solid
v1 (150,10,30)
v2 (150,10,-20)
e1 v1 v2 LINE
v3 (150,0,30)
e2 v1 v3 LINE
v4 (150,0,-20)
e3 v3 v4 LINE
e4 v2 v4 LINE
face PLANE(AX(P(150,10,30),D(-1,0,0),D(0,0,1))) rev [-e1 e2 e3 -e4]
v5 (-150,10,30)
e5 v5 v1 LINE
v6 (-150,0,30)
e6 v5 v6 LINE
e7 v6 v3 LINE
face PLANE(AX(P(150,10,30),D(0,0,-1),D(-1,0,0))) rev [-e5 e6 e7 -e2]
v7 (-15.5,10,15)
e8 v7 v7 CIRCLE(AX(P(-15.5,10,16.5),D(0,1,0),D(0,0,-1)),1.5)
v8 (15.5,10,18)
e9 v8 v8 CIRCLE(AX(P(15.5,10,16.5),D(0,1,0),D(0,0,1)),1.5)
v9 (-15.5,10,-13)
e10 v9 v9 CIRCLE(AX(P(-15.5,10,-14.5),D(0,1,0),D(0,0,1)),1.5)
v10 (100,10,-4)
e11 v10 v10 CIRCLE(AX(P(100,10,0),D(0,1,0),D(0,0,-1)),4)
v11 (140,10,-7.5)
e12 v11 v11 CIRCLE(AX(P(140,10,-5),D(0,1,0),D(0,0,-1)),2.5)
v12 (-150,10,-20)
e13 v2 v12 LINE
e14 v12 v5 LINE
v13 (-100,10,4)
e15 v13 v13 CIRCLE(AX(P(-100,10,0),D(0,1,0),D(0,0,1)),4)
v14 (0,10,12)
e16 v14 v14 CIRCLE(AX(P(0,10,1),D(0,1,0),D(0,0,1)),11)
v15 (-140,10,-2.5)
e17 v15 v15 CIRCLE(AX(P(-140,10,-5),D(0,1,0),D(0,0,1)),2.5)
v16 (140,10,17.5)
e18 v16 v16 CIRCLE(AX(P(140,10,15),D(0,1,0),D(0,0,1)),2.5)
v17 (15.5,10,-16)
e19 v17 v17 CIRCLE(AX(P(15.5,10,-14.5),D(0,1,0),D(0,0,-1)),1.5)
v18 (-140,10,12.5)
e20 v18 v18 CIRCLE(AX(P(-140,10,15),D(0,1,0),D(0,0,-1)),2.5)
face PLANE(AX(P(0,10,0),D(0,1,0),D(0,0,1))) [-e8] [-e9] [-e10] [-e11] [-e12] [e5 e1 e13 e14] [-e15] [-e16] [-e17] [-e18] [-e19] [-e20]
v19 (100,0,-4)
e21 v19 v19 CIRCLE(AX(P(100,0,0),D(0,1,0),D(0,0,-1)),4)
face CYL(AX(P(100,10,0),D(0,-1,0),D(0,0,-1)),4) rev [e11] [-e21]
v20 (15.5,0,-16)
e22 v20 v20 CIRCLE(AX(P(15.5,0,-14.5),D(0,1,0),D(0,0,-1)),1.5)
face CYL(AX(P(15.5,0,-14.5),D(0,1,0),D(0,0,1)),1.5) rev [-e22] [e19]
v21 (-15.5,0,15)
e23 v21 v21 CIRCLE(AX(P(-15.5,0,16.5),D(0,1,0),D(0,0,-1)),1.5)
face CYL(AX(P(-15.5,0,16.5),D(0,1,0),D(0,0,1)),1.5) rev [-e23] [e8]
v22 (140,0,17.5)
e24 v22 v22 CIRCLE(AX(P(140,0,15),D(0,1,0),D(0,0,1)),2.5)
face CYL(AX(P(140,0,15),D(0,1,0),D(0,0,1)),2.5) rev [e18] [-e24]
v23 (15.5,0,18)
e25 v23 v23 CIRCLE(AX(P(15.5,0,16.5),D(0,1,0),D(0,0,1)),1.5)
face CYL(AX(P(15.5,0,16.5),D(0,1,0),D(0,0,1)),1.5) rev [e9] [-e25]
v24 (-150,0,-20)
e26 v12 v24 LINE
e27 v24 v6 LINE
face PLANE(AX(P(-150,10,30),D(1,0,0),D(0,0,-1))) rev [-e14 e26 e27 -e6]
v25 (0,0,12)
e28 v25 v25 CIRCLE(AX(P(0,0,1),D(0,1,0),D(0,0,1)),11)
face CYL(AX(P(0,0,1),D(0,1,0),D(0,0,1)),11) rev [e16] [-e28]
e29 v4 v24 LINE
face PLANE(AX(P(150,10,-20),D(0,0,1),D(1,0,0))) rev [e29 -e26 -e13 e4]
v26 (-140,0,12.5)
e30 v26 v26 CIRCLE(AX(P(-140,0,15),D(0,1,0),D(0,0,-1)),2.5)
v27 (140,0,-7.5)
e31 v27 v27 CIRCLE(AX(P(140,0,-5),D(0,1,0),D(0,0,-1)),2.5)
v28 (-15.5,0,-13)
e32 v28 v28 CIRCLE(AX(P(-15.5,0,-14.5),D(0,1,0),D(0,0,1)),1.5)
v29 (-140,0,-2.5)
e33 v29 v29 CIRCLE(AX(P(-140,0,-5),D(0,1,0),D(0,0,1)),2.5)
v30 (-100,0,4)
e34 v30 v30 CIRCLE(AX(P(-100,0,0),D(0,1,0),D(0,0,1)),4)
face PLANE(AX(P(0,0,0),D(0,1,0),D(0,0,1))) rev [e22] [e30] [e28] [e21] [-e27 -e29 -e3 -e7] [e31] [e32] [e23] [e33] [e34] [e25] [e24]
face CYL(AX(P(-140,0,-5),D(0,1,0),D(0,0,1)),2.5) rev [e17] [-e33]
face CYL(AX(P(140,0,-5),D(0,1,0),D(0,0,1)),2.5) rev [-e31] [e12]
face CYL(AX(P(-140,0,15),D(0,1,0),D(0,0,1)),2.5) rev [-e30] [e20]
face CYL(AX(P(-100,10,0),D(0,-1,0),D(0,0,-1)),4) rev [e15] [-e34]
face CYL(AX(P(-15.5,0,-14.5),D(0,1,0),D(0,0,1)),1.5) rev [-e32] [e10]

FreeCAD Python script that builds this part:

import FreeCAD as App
import Part
import Sketcher


def add_polygon(sketch, points):
    """Adds a closed chain of lines whose ends are joined by coincident constraints."""
    first, n = sketch.GeometryCount, len(points)
    for a, b in zip(points, points[1:] + points[:1]):
        sketch.addGeometry(Part.LineSegment(App.Vector(*a, 0), App.Vector(*b, 0)), False)
    for i in range(n):
        sketch.addConstraint(Sketcher.Constraint("Coincident", first + i, 2, first + (i + 1) % n, 1))

doc = App.newDocument("Part")
body = doc.addObject("PartDesign::Body", "Body")

# Sketch on XZ plane
sketch1 = doc.addObject("Sketcher::SketchObject", "Sketch")
body.addObject(sketch1)
sketch1.AttachmentSupport = (doc.XZ_Plane, [""])
sketch1.MapMode = "FlatFace"
add_polygon(sketch1, [(-150, -20), (-150, 30), (150, 30), (150, -20)])  # lines 0-3
sketch1.addGeometry(Part.Circle(App.Vector(-100, 0, 0), App.Vector(0, 0, 1), 4), False)  # 4
sketch1.addGeometry(Part.Circle(App.Vector(100, 0, 0), App.Vector(0, 0, 1), 4), False)  # 5
sketch1.addConstraint(Sketcher.Constraint("Vertical", 0))
sketch1.addConstraint(Sketcher.Constraint("Horizontal", 1))
sketch1.addConstraint(Sketcher.Constraint("Vertical", 2))
sketch1.addConstraint(Sketcher.Constraint("Horizontal", 3))
sketch1.addConstraint(Sketcher.Constraint("Equal", 4, 5))
sketch1.addConstraint(Sketcher.Constraint("Symmetric", 4, 3, 5, 3, -1, 1))
sketch1.addConstraint(Sketcher.Constraint("PointOnObject", 4, 3, -1))
sketch1.addConstraint(Sketcher.Constraint("Diameter", 4, 8.0))
sketch1.addConstraint(Sketcher.Constraint("DistanceX", 1, 1, 1, 2, 300.0))
sketch1.addConstraint(Sketcher.Constraint("DistanceY", 0, 1, 0, 2, 50.0))
sketch1.addConstraint(Sketcher.Constraint("DistanceX", 4, 3, -1, 1, 100.0))
sketch1.addConstraint(Sketcher.Constraint("DistanceX", 0, 2, -1, 1, 150.0))
sketch1.addConstraint(Sketcher.Constraint("DistanceY", -1, 1, 0, 2, 30.0))
pad1 = doc.addObject("PartDesign::Pad", "Pad")
body.addObject(pad1)
pad1.Profile = sketch1
pad1.Length = 10
pad1.Reversed = True

# Sketch on XZ plane
sketch2 = doc.addObject("Sketcher::SketchObject", "Sketch001")
body.addObject(sketch2)
sketch2.AttachmentSupport = (doc.XZ_Plane, [""])
sketch2.MapMode = "FlatFace"
sketch2.AttachmentOffset = App.Placement(App.Vector(0, 0, -10), App.Rotation())
sketch2.addGeometry(Part.Circle(App.Vector(-140, -5, 0), App.Vector(0, 0, 1), 2.5), False)
sketch2.addGeometry(Part.Circle(App.Vector(-140, 15, 0), App.Vector(0, 0, 1), 2.5), False)
sketch2.addGeometry(Part.Circle(App.Vector(140, 15, 0), App.Vector(0, 0, 1), 2.5), False)
sketch2.addGeometry(Part.Circle(App.Vector(140, -5, 0), App.Vector(0, 0, 1), 2.5), False)
sketch2.addConstraint(Sketcher.Constraint("Equal", 0, 1))
sketch2.addConstraint(Sketcher.Constraint("Equal", 1, 2))
sketch2.addConstraint(Sketcher.Constraint("Equal", 2, 3))
sketch2.addConstraint(Sketcher.Constraint("Symmetric", 1, 3, 2, 3, -2))
sketch2.addConstraint(Sketcher.Constraint("Symmetric", 0, 3, 3, 3, -2))
sketch2.addConstraint(Sketcher.Constraint("Vertical", 0, 3, 1, 3))
sketch2.addConstraint(Sketcher.Constraint("Diameter", 0, 5.0))
sketch2.addConstraint(Sketcher.Constraint("DistanceX", 0, 3, -1, 1, 140.0))
sketch2.addConstraint(Sketcher.Constraint("DistanceY", 0, 3, -1, 1, 5.0))
sketch2.addConstraint(Sketcher.Constraint("DistanceY", -1, 1, 1, 3, 15.0))
pocket1 = doc.addObject("PartDesign::Pocket", "Pocket")
body.addObject(pocket1)
pocket1.Profile = sketch2
pocket1.Type = "ThroughAll"
pocket1.Reversed = True

# Sketch on XZ plane
sketch3 = doc.addObject("Sketcher::SketchObject", "Sketch002")
body.addObject(sketch3)
sketch3.AttachmentSupport = (doc.XZ_Plane, [""])
sketch3.MapMode = "FlatFace"
sketch3.AttachmentOffset = App.Placement(App.Vector(0, 0, -10), App.Rotation())
sketch3.addGeometry(Part.Circle(App.Vector(0, 1, 0), App.Vector(0, 0, 1), 11), False)
sketch3.addGeometry(Part.Circle(App.Vector(15.5, 16.5, 0), App.Vector(0, 0, 1), 1.5), False)
sketch3.addGeometry(Part.Circle(App.Vector(-15.5, 16.5, 0), App.Vector(0, 0, 1), 1.5), False)
sketch3.addGeometry(Part.Circle(App.Vector(-15.5, -14.5, 0), App.Vector(0, 0, 1), 1.5), False)
sketch3.addGeometry(Part.Circle(App.Vector(15.5, -14.5, 0), App.Vector(0, 0, 1), 1.5), False)
sketch3.addConstraint(Sketcher.Constraint("Equal", 1, 2))
sketch3.addConstraint(Sketcher.Constraint("Equal", 2, 3))
sketch3.addConstraint(Sketcher.Constraint("Equal", 3, 4))
sketch3.addConstraint(Sketcher.Constraint("Symmetric", 1, 3, 2, 3, -2))
sketch3.addConstraint(Sketcher.Constraint("Symmetric", 3, 3, 4, 3, -2))
sketch3.addConstraint(Sketcher.Constraint("PointOnObject", 0, 3, -2))
sketch3.addConstraint(Sketcher.Constraint("Vertical", 2, 3, 3, 3))
sketch3.addConstraint(Sketcher.Constraint("Diameter", 0, 22.0))
sketch3.addConstraint(Sketcher.Constraint("Diameter", 1, 3.0))
sketch3.addConstraint(Sketcher.Constraint("DistanceY", -1, 1, 0, 3, 1.0))
sketch3.addConstraint(Sketcher.Constraint("DistanceX", 2, 3, 1, 3, 31.0))
sketch3.addConstraint(Sketcher.Constraint("DistanceY", 3, 3, 2, 3, 31.0))
sketch3.addConstraint(Sketcher.Constraint("DistanceY", -1, 1, 1, 3, 16.5))
pocket2 = doc.addObject("PartDesign::Pocket", "Pocket001")
body.addObject(pocket2)
pocket2.Profile = sketch3
pocket2.Type = "ThroughAll"
pocket2.Reversed = True

doc.recompute()
